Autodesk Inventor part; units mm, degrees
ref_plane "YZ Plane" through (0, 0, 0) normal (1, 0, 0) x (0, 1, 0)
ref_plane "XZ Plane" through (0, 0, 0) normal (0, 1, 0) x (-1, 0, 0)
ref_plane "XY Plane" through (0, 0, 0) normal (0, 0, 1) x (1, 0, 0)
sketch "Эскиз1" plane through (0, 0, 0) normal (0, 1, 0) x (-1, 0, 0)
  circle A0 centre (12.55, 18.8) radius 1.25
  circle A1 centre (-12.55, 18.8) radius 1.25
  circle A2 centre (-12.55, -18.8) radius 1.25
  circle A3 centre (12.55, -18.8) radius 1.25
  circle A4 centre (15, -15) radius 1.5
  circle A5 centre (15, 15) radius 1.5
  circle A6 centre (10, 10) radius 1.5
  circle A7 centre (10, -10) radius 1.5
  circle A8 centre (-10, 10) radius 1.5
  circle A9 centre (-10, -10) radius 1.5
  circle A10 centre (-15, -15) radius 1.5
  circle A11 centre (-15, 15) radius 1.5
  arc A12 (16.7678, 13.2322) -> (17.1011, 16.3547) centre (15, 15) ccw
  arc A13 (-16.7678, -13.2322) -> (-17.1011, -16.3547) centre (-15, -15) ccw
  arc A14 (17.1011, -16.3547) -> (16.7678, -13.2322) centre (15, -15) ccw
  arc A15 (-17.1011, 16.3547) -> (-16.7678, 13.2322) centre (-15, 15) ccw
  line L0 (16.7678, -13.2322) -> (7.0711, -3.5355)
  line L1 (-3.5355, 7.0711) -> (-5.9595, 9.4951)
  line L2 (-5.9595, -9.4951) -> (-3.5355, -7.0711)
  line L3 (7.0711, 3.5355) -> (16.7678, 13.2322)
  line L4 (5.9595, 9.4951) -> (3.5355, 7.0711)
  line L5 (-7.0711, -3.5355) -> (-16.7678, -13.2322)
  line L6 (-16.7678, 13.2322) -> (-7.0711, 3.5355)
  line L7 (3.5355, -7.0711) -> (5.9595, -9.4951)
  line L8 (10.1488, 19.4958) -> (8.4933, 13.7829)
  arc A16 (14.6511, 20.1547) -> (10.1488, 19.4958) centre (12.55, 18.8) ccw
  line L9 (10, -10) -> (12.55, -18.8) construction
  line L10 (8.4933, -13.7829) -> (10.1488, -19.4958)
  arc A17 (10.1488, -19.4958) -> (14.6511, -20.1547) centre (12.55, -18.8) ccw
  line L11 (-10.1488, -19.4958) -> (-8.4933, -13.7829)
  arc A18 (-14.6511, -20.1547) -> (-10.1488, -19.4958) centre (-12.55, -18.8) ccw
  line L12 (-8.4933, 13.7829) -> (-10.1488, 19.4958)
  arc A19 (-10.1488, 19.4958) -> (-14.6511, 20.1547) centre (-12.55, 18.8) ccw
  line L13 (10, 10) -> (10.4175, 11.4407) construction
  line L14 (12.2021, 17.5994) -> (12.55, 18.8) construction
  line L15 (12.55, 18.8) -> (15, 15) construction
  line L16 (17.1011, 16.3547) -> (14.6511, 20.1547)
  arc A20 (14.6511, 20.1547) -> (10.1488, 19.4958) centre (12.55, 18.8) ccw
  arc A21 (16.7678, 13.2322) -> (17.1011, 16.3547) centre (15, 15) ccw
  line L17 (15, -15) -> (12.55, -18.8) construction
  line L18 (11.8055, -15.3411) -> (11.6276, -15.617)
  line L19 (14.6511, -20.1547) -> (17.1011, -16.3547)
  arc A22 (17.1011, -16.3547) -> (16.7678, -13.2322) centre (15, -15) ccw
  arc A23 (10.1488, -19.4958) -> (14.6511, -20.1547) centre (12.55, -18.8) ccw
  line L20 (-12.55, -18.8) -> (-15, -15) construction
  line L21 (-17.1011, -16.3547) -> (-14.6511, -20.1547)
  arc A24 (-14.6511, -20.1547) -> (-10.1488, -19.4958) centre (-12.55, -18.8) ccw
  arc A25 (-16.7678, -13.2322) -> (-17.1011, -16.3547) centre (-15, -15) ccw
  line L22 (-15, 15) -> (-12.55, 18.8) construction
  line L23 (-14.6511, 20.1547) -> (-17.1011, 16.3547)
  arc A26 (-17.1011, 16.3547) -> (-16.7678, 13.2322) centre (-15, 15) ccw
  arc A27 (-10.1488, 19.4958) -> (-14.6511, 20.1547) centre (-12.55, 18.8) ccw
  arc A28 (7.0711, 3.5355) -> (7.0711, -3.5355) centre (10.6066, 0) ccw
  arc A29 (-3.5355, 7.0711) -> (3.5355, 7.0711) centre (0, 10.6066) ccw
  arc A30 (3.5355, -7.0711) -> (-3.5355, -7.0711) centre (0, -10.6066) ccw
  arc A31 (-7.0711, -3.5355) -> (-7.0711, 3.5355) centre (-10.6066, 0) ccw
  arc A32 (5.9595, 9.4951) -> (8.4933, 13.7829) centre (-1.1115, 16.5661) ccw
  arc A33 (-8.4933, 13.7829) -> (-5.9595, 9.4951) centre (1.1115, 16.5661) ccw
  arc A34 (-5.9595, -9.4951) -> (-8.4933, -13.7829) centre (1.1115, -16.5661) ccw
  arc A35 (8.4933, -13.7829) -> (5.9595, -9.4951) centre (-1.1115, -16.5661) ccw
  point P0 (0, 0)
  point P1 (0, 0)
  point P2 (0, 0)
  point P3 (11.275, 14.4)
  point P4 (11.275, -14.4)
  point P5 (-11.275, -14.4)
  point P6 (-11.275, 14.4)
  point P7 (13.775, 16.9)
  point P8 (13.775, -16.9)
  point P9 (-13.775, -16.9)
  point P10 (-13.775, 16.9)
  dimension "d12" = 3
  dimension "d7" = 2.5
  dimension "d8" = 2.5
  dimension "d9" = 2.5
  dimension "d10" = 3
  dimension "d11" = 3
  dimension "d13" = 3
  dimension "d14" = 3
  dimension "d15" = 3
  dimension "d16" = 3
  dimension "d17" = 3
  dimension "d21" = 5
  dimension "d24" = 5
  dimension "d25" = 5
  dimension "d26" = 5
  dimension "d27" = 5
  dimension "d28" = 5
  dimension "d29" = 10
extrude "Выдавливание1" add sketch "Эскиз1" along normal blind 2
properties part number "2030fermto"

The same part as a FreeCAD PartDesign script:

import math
import FreeCAD as App
import Part
import Sketcher
from FreeCAD import Vector
Q = App.Units.Quantity

doc = App.newDocument("Part")
params = doc.addObject("Spreadsheet::Sheet", "Params")
for row, (alias, value) in enumerate([
    ("sketch1_diameter", "3 mm"),
    ("sketch1_radius", "10 mm"),
    ("sketch1_radius2", "5 mm"),
    ("sketch1_diameter2", "2.5 mm"),
    ("sketch1_radius3", "2.5 mm"),
    ("pad1_length", "2 mm"),
], start=1):
    params.set(f"A{row}", alias)
    params.set(f"B{row}", "=" + value)
    params.setAlias(f"B{row}", alias)

body = doc.addObject("PartDesign::Body", "Body")

# Sketch on XZ plane
sketch1 = body.newObject("Sketcher::SketchObject", "Sketch")
sketch1.AttachmentSupport = (doc.getObject("XZ_Plane"), [""])
sketch1.MapMode = "FlatFace"
sketch1.addGeometry([
    Part.LineSegment(Vector(-7.1, 3.5, 0), Vector(-16.8, 13.2, 0)),  # 0
    Part.ArcOfCircle(Part.Circle(Vector(-15, 15, 0), Vector(0, 0, 1), 2.5), math.radians(147), math.radians(225)),  # 1
    Part.LineSegment(Vector(-17.1, 16.4, 0), Vector(-14.7, 20.2, 0)),  # 2
    Part.ArcOfCircle(Part.Circle(Vector(-12.6, 18.8, 0), Vector(0, 0, 1), 2.5), math.radians(16), math.radians(147)),  # 3
    Part.LineSegment(Vector(-10.1, 19.5, 0), Vector(-8.5, 13.8, 0)),  # 4
    Part.ArcOfCircle(Part.Circle(Vector(1.1, 16.6, 0), Vector(0, 0, 1), 10), math.radians(-164), math.radians(-135)),  # 5
    Part.LineSegment(Vector(-6, 9.5, 0), Vector(-3.5, 7.1, 0)),  # 6
    Part.ArcOfCircle(Part.Circle(Vector(0, 10.6, 0), Vector(0, 0, 1), 5), math.radians(-135), math.radians(-45)),  # 7
    Part.LineSegment(Vector(3.5, 7.1, 0), Vector(6, 9.5, 0)),  # 8
    Part.ArcOfCircle(Part.Circle(Vector(-1.1, 16.6, 0), Vector(0, 0, 1), 10), math.radians(-45), math.radians(-16)),  # 9
    Part.LineSegment(Vector(8.5, 13.8, 0), Vector(10.1, 19.5, 0)),  # 10
    Part.ArcOfCircle(Part.Circle(Vector(12.6, 18.8, 0), Vector(0, 0, 1), 2.5), math.radians(33), math.radians(164)),  # 11
    Part.LineSegment(Vector(14.7, 20.2, 0), Vector(17.1, 16.4, 0)),  # 12
    Part.ArcOfCircle(Part.Circle(Vector(15, 15, 0), Vector(0, 0, 1), 2.5), math.radians(-45), math.radians(33)),  # 13
    Part.LineSegment(Vector(16.8, 13.2, 0), Vector(7.1, 3.5, 0)),  # 14
    Part.ArcOfCircle(Part.Circle(Vector(10.6, 0, 0), Vector(0, 0, 1), 5), math.radians(135), math.radians(225)),  # 15
    Part.LineSegment(Vector(7.1, -3.5, 0), Vector(16.8, -13.2, 0)),  # 16
    Part.ArcOfCircle(Part.Circle(Vector(15, -15, 0), Vector(0, 0, 1), 2.5), math.radians(-33), math.radians(45)),  # 17
    Part.LineSegment(Vector(17.1, -16.4, 0), Vector(14.7, -20.2, 0)),  # 18
    Part.ArcOfCircle(Part.Circle(Vector(12.6, -18.8, 0), Vector(0, 0, 1), 2.5), math.radians(-164), math.radians(-33)),  # 19
    Part.LineSegment(Vector(10.1, -19.5, 0), Vector(8.5, -13.8, 0)),  # 20
    Part.ArcOfCircle(Part.Circle(Vector(-1.1, -16.6, 0), Vector(0, 0, 1), 10), math.radians(16), math.radians(45)),  # 21
    Part.LineSegment(Vector(6, -9.5, 0), Vector(3.5, -7.1, 0)),  # 22
    Part.ArcOfCircle(Part.Circle(Vector(0, -10.6, 0), Vector(0, 0, 1), 5), math.radians(45), math.radians(135)),  # 23
    Part.LineSegment(Vector(-3.5, -7.1, 0), Vector(-6, -9.5, 0)),  # 24
    Part.ArcOfCircle(Part.Circle(Vector(1.1, -16.6, 0), Vector(0, 0, 1), 10), math.radians(135), math.radians(164)),  # 25
    Part.LineSegment(Vector(-8.5, -13.8, 0), Vector(-10.1, -19.5, 0)),  # 26
    Part.ArcOfCircle(Part.Circle(Vector(-12.6, -18.8, 0), Vector(0, 0, 1), 2.5), math.radians(-147), math.radians(-16)),  # 27
    Part.LineSegment(Vector(-14.7, -20.2, 0), Vector(-17.1, -16.4, 0)),  # 28
    Part.ArcOfCircle(Part.Circle(Vector(-15, -15, 0), Vector(0, 0, 1), 2.5), math.radians(135), math.radians(213)),  # 29
    Part.LineSegment(Vector(-16.8, -13.2, 0), Vector(-7.1, -3.5, 0)),  # 30
    Part.ArcOfCircle(Part.Circle(Vector(-10.6, 0, 0), Vector(0, 0, 1), 5), math.radians(-45), math.radians(45)),  # 31
    Part.Circle(Vector(12.6, -18.8, 0), Vector(0, 0, 1), 1.2),  # 32
    Part.Circle(Vector(15, -15, 0), Vector(0, 0, 1), 1.5),  # 33
    Part.Circle(Vector(10, -10, 0), Vector(0, 0, 1), 1.5),  # 34
    Part.Circle(Vector(-12.6, -18.8, 0), Vector(0, 0, 1), 1.2),  # 35
    Part.Circle(Vector(-15, -15, 0), Vector(0, 0, 1), 1.5),  # 36
    Part.Circle(Vector(-10, -10, 0), Vector(0, 0, 1), 1.5),  # 37
    Part.Circle(Vector(10, 10, 0), Vector(0, 0, 1), 1.5),  # 38
    Part.Circle(Vector(15, 15, 0), Vector(0, 0, 1), 1.5),  # 39
    Part.Circle(Vector(12.6, 18.8, 0), Vector(0, 0, 1), 1.2),  # 40
    Part.Circle(Vector(-10, 10, 0), Vector(0, 0, 1), 1.5),  # 41
    Part.Circle(Vector(-15, 15, 0), Vector(0, 0, 1), 1.5),  # 42
    Part.Circle(Vector(-12.6, 18.8, 0), Vector(0, 0, 1), 1.2),  # 43
], False)
sketch1.addConstraint([
    Sketcher.Constraint("Tangent", 0, 2, 1, 2),
    Sketcher.Constraint("Tangent", 1, 1, 2, 1),
    Sketcher.Constraint("Tangent", 2, 2, 3, 2),
    Sketcher.Constraint("Tangent", 3, 1, 4, 1),
    Sketcher.Constraint("Tangent", 4, 2, 5, 1),
    Sketcher.Constraint("Tangent", 5, 2, 6, 1),
    Sketcher.Constraint("Tangent", 6, 2, 7, 1),
    Sketcher.Constraint("Tangent", 7, 2, 8, 1),
    Sketcher.Constraint("Tangent", 8, 2, 9, 1),
    Sketcher.Constraint("Tangent", 9, 2, 10, 1),
    Sketcher.Constraint("Tangent", 10, 2, 11, 2),
    Sketcher.Constraint("Tangent", 11, 1, 12, 1),
    Sketcher.Constraint("Tangent", 12, 2, 13, 2),
    Sketcher.Constraint("Tangent", 13, 1, 14, 1),
    Sketcher.Constraint("Tangent", 14, 2, 15, 1),
    Sketcher.Constraint("Tangent", 15, 2, 16, 1),
    Sketcher.Constraint("Tangent", 16, 2, 17, 2),
    Sketcher.Constraint("Tangent", 17, 1, 18, 1),
    Sketcher.Constraint("Tangent", 18, 2, 19, 2),
    Sketcher.Constraint("Tangent", 19, 1, 20, 1),
    Sketcher.Constraint("Tangent", 20, 2, 21, 1),
    Sketcher.Constraint("Tangent", 21, 2, 22, 1),
    Sketcher.Constraint("Tangent", 22, 2, 23, 1),
    Sketcher.Constraint("Tangent", 23, 2, 24, 1),
    Sketcher.Constraint("Tangent", 24, 2, 25, 1),
    Sketcher.Constraint("Tangent", 25, 2, 26, 1),
    Sketcher.Constraint("Tangent", 26, 2, 27, 2),
    Sketcher.Constraint("Tangent", 27, 1, 28, 1),
    Sketcher.Constraint("Tangent", 28, 2, 29, 2),
    Sketcher.Constraint("Tangent", 29, 1, 30, 1),
    Sketcher.Constraint("Tangent", 30, 2, 31, 1),
    Sketcher.Constraint("Tangent", 31, 2, 0, 1),
    Sketcher.Constraint("Coincident", 32, 3, 19, 3),
    Sketcher.Constraint("Coincident", 33, 3, 17, 3),
    Sketcher.Constraint("Coincident", 35, 3, 27, 3),
    Sketcher.Constraint("Coincident", 36, 3, 29, 3),
    Sketcher.Constraint("Coincident", 39, 3, 13, 3),
    Sketcher.Constraint("Coincident", 40, 3, 11, 3),
    Sketcher.Constraint("Coincident", 42, 3, 1, 3),
    Sketcher.Constraint("Coincident", 43, 3, 3, 3),
    Sketcher.Constraint("Equal", 1, 3),
    Sketcher.Constraint("Equal", 5, 9),
    Sketcher.Constraint("Equal", 3, 11),
    Sketcher.Constraint("Equal", 11, 13),
    Sketcher.Constraint("Equal", 7, 15),
    Sketcher.Constraint("Equal", 13, 17),
    Sketcher.Constraint("Equal", 17, 19),
    Sketcher.Constraint("Equal", 9, 21),
    Sketcher.Constraint("Equal", 15, 23),
    Sketcher.Constraint("Equal", 21, 25),
    Sketcher.Constraint("Equal", 19, 27),
    Sketcher.Constraint("Equal", 27, 29),
    Sketcher.Constraint("Equal", 23, 31),
    Sketcher.Constraint("Equal", 33, 34),
    Sketcher.Constraint("Equal", 32, 35),
    Sketcher.Constraint("Equal", 34, 36),
    Sketcher.Constraint("Equal", 36, 37),
    Sketcher.Constraint("Equal", 37, 38),
    Sketcher.Constraint("Equal", 38, 39),
    Sketcher.Constraint("Equal", 35, 40),
    Sketcher.Constraint("Equal", 39, 41),
    Sketcher.Constraint("Equal", 41, 42),
    Sketcher.Constraint("Equal", 40, 43),
    Sketcher.Constraint("Symmetric", 1, 3, 17, 3, -1, 1),
    Sketcher.Constraint("Symmetric", 3, 3, 19, 3, -1, 1),
    Sketcher.Constraint("Symmetric", 5, 3, 21, 3, -1, 1),
    Sketcher.Constraint("Symmetric", 7, 3, 23, 3, -1, 1),
    Sketcher.Constraint("Symmetric", 9, 3, 25, 3, -1, 1),
    Sketcher.Constraint("Symmetric", 11, 3, 27, 3, -1, 1),
    Sketcher.Constraint("Symmetric", 13, 3, 29, 3, -1, 1),
    Sketcher.Constraint("Symmetric", 15, 3, 31, 3, -1, 1),
    Sketcher.Constraint("Symmetric", 37, 3, 38, 3, -1, 1),
    Sketcher.Constraint("Symmetric", 34, 3, 41, 3, -1, 1),
    Sketcher.Constraint("Symmetric", 5, 3, 9, 3, -2),
    Sketcher.Constraint("Symmetric", 3, 3, 11, 3, -2),
    Sketcher.Constraint("Symmetric", 1, 3, 13, 3, -2),
    Sketcher.Constraint("Symmetric", 34, 3, 37, 3, -2),
    Sketcher.Constraint("PointOnObject", 7, 3, -2),
    Sketcher.Constraint("PointOnObject", 15, 3, -1),
    Sketcher.Constraint("Parallel", 0, 6),
    Sketcher.Constraint("Perpendicular", 6, 8),
    Sketcher.Constraint("Diameter", 33, 3.0),
    Sketcher.Constraint("Radius", 5, 10.0),
    Sketcher.Constraint("Radius", 7, 5.0),
    Sketcher.Constraint("Diameter", 32, 2.5),
    Sketcher.Constraint("Radius", 1, 2.5),
    Sketcher.Constraint("DistanceX", -1, 1, 34, 3, 10.0),
    Sketcher.Constraint("DistanceY", 34, 3, -1, 1, 10.0),
    Sketcher.Constraint("DistanceX", 34, 3, 17, 3, 5.0),
    Sketcher.Constraint("DistanceY", 17, 3, 34, 3, 5.0),
    Sketcher.Constraint("DistanceY", -1, 1, 3, 3, 18.8),
    Sketcher.Constraint("Angle", 4, Q("-73.8393 deg")),
    Sketcher.Constraint("DistanceX", 3, 3, 11, 3, 25.1),
    Sketcher.Constraint("Distance", 4, 5.948),
])
sketch1.setExpression("Constraints[81]", "Params.sketch1_diameter")
sketch1.setExpression("Constraints[82]", "Params.sketch1_radius")
sketch1.setExpression("Constraints[83]", "Params.sketch1_radius2")
sketch1.setExpression("Constraints[84]", "Params.sketch1_diameter2")
sketch1.setExpression("Constraints[85]", "Params.sketch1_radius3")
pad1 = body.newObject("PartDesign::Pad", "Pad")
pad1.Profile = sketch1
pad1.setExpression("Length", "Params.pad1_length")
pad1.Reversed = True

doc.recompute()
